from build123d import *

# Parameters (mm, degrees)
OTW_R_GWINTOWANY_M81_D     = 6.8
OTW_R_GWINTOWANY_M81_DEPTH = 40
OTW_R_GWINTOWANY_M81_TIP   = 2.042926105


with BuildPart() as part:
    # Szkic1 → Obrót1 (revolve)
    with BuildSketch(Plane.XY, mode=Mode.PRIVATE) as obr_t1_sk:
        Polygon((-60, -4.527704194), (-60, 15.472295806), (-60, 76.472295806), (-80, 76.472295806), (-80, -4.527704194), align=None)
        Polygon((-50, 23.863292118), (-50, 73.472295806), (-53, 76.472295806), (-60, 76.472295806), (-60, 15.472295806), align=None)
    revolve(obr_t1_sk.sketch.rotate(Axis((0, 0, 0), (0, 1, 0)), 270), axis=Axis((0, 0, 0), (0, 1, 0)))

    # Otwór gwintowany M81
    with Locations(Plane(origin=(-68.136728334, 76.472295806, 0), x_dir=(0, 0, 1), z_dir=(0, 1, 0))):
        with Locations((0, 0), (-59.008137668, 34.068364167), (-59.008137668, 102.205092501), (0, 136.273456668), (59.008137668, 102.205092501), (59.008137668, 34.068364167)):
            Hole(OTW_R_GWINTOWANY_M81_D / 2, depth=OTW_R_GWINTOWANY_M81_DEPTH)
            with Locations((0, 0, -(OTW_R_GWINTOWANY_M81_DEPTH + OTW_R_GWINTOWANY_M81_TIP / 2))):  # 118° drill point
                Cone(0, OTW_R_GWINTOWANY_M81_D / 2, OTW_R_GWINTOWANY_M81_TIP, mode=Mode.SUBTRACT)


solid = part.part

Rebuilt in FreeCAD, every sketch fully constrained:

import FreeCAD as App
import Part
import Sketcher
from FreeCAD import Vector
Q = App.Units.Quantity

doc = App.newDocument("Part")
body = doc.addObject("PartDesign::Body", "Body")

sketch1 = body.newObject("Sketcher::SketchObject", "Sketch")
sketch1.AttachmentSupport = (doc.getObject("XY_Plane"), [""])
sketch1.MapMode = "FlatFace"
sketch1.addGeometry([
    Part.LineSegment(Vector(-60, -4.527704, 0), Vector(-60, 15.472296, 0)),
    Part.LineSegment(Vector(-60, 15.472296, 0), Vector(-50, 23.863292, 0)),
    Part.LineSegment(Vector(-50, 23.863292, 0), Vector(-50, 73.472296, 0)),
    Part.LineSegment(Vector(-50, 73.472296, 0), Vector(-53, 76.472296, 0)),
    Part.LineSegment(Vector(-53, 76.472296, 0), Vector(-80, 76.472296, 0)),
    Part.LineSegment(Vector(-80, 76.472296, 0), Vector(-80, -4.527704, 0)),
    Part.LineSegment(Vector(-80, -4.527704, 0), Vector(-60, -4.527704, 0)),
], False)
sketch1.addConstraint([
    Sketcher.Constraint("Coincident", 0, 2, 1, 1),
    Sketcher.Constraint("Coincident", 1, 2, 2, 1),
    Sketcher.Constraint("Coincident", 2, 2, 3, 1),
    Sketcher.Constraint("Coincident", 3, 2, 4, 1),
    Sketcher.Constraint("Coincident", 4, 2, 5, 1),
    Sketcher.Constraint("Coincident", 5, 2, 6, 1),
    Sketcher.Constraint("Coincident", 6, 2, 0, 1),
    Sketcher.Constraint("Vertical", 0),
    Sketcher.Constraint("Vertical", 2),
    Sketcher.Constraint("Horizontal", 4),
    Sketcher.Constraint("Vertical", 5),
    Sketcher.Constraint("Horizontal", 6),
    Sketcher.Constraint("Equal", 6, 0),
    Sketcher.Constraint("DistanceX", 4, 2, 4, 1, 27.0),
    Sketcher.Constraint("DistanceX", 6, 1, 6, 2, 20.0),
    Sketcher.Constraint("DistanceY", 5, 2, 5, 1, 81.0),
    Sketcher.Constraint("Angle", 1, Q("40 deg")),
    Sketcher.Constraint("Angle", 3, Q("135 deg")),
    Sketcher.Constraint("DistanceX", 0, 2, -1, 1, 60.0),
    Sketcher.Constraint("DistanceX", 1, 2, -1, 1, 50.0),
    Sketcher.Constraint("DistanceY", -1, 1, 0, 2, 15.472296),
])
revolution = body.newObject("PartDesign::Revolution", "Revolution")
revolution.Profile = sketch1
revolution.ReferenceAxis = (sketch1, ["V_Axis"])
revolution.Angle = 360

sketch2 = body.newObject("Sketcher::SketchObject", "Sketch001")
sketch2.AttachmentSupport = (doc.getObject("XZ_Plane"), [""])
sketch2.MapMode = "FlatFace"
sketch2.AttachmentOffset = App.Placement(Vector(0, 0, -76.472296), App.Rotation())
sketch2.addGeometry([
    Part.Circle(Vector(-68.136728, 0, 0), Vector(0, 0, 1), 3.4),
    Part.Circle(Vector(-34.068364, -59.008138, 0), Vector(0, 0, 1), 3.4),
    Part.Circle(Vector(34.068364, -59.008138, 0), Vector(0, 0, 1), 3.4),
    Part.Circle(Vector(68.136728, 0, 0), Vector(0, 0, 1), 3.4),
    Part.Circle(Vector(34.068364, 59.008138, 0), Vector(0, 0, 1), 3.4),
    Part.Circle(Vector(-34.068364, 59.008138, 0), Vector(0, 0, 1), 3.4),
], False)
sketch2.addConstraint([
    Sketcher.Constraint("Equal", 0, 1),
    Sketcher.Constraint("Equal", 1, 2),
    Sketcher.Constraint("Equal", 2, 3),
    Sketcher.Constraint("Equal", 3, 4),
    Sketcher.Constraint("Equal", 4, 5),
    Sketcher.Constraint("Symmetric", 0, 3, 3, 3, -1, 1),
    Sketcher.Constraint("Symmetric", 1, 3, 4, 3, -1, 1),
    Sketcher.Constraint("Symmetric", 2, 3, 5, 3, -1, 1),
    Sketcher.Constraint("Symmetric", 1, 3, 2, 3, -2),
    Sketcher.Constraint("PointOnObject", 0, 3, -1),
    Sketcher.Constraint("Diameter", 0, 6.8),
    Sketcher.Constraint("DistanceX", 0, 3, -1, 1, 68.136728),
    Sketcher.Constraint("DistanceX", 1, 3, 2, 3, 68.136728),
    Sketcher.Constraint("DistanceY", 1, 3, -1, 1, 59.008138),
])
doc.recompute()
hole = body.newObject("PartDesign::Hole", "Hole")
hole.Profile = sketch2
hole.ThreadType = "None"
hole.Diameter = 6.8
hole.DepthType = "Dimension"
hole.Depth = 40
hole.DrillPoint = "Angled"
hole.DrillPointAngle = 118
hole.Reversed = True

doc.recompute()
